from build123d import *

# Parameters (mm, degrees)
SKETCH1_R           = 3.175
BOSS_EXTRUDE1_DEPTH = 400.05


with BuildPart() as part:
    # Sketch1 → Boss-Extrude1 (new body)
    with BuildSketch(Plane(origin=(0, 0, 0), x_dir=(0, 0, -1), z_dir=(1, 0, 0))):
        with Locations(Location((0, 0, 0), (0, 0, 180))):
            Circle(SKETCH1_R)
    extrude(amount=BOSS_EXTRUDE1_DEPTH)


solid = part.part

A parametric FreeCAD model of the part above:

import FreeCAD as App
import Part
import Sketcher
Q = App.Units.Quantity

doc = App.newDocument("Part")
body = doc.addObject("PartDesign::Body", "Body")

# Sketch on YZ plane
sketch1 = body.newObject("Sketcher::SketchObject", "Sketch")
sketch1.AttachmentSupport = (doc.getObject("YZ_Plane"), [""])
sketch1.MapMode = "FlatFace"
sketch1.addGeometry(Part.Circle(App.Vector(0, 0, 0), App.Vector(0, 0, 1), 3.2), False)
sketch1.addConstraint(Sketcher.Constraint("Coincident", 0, 3, -1, 1))
sketch1.addConstraint(Sketcher.Constraint("Diameter", 0, Q("0.25 in")))
pad1 = body.newObject("PartDesign::Pad", "Pad")
pad1.Profile = sketch1
pad1.Length = Q("15.75 in")

doc.recompute()
